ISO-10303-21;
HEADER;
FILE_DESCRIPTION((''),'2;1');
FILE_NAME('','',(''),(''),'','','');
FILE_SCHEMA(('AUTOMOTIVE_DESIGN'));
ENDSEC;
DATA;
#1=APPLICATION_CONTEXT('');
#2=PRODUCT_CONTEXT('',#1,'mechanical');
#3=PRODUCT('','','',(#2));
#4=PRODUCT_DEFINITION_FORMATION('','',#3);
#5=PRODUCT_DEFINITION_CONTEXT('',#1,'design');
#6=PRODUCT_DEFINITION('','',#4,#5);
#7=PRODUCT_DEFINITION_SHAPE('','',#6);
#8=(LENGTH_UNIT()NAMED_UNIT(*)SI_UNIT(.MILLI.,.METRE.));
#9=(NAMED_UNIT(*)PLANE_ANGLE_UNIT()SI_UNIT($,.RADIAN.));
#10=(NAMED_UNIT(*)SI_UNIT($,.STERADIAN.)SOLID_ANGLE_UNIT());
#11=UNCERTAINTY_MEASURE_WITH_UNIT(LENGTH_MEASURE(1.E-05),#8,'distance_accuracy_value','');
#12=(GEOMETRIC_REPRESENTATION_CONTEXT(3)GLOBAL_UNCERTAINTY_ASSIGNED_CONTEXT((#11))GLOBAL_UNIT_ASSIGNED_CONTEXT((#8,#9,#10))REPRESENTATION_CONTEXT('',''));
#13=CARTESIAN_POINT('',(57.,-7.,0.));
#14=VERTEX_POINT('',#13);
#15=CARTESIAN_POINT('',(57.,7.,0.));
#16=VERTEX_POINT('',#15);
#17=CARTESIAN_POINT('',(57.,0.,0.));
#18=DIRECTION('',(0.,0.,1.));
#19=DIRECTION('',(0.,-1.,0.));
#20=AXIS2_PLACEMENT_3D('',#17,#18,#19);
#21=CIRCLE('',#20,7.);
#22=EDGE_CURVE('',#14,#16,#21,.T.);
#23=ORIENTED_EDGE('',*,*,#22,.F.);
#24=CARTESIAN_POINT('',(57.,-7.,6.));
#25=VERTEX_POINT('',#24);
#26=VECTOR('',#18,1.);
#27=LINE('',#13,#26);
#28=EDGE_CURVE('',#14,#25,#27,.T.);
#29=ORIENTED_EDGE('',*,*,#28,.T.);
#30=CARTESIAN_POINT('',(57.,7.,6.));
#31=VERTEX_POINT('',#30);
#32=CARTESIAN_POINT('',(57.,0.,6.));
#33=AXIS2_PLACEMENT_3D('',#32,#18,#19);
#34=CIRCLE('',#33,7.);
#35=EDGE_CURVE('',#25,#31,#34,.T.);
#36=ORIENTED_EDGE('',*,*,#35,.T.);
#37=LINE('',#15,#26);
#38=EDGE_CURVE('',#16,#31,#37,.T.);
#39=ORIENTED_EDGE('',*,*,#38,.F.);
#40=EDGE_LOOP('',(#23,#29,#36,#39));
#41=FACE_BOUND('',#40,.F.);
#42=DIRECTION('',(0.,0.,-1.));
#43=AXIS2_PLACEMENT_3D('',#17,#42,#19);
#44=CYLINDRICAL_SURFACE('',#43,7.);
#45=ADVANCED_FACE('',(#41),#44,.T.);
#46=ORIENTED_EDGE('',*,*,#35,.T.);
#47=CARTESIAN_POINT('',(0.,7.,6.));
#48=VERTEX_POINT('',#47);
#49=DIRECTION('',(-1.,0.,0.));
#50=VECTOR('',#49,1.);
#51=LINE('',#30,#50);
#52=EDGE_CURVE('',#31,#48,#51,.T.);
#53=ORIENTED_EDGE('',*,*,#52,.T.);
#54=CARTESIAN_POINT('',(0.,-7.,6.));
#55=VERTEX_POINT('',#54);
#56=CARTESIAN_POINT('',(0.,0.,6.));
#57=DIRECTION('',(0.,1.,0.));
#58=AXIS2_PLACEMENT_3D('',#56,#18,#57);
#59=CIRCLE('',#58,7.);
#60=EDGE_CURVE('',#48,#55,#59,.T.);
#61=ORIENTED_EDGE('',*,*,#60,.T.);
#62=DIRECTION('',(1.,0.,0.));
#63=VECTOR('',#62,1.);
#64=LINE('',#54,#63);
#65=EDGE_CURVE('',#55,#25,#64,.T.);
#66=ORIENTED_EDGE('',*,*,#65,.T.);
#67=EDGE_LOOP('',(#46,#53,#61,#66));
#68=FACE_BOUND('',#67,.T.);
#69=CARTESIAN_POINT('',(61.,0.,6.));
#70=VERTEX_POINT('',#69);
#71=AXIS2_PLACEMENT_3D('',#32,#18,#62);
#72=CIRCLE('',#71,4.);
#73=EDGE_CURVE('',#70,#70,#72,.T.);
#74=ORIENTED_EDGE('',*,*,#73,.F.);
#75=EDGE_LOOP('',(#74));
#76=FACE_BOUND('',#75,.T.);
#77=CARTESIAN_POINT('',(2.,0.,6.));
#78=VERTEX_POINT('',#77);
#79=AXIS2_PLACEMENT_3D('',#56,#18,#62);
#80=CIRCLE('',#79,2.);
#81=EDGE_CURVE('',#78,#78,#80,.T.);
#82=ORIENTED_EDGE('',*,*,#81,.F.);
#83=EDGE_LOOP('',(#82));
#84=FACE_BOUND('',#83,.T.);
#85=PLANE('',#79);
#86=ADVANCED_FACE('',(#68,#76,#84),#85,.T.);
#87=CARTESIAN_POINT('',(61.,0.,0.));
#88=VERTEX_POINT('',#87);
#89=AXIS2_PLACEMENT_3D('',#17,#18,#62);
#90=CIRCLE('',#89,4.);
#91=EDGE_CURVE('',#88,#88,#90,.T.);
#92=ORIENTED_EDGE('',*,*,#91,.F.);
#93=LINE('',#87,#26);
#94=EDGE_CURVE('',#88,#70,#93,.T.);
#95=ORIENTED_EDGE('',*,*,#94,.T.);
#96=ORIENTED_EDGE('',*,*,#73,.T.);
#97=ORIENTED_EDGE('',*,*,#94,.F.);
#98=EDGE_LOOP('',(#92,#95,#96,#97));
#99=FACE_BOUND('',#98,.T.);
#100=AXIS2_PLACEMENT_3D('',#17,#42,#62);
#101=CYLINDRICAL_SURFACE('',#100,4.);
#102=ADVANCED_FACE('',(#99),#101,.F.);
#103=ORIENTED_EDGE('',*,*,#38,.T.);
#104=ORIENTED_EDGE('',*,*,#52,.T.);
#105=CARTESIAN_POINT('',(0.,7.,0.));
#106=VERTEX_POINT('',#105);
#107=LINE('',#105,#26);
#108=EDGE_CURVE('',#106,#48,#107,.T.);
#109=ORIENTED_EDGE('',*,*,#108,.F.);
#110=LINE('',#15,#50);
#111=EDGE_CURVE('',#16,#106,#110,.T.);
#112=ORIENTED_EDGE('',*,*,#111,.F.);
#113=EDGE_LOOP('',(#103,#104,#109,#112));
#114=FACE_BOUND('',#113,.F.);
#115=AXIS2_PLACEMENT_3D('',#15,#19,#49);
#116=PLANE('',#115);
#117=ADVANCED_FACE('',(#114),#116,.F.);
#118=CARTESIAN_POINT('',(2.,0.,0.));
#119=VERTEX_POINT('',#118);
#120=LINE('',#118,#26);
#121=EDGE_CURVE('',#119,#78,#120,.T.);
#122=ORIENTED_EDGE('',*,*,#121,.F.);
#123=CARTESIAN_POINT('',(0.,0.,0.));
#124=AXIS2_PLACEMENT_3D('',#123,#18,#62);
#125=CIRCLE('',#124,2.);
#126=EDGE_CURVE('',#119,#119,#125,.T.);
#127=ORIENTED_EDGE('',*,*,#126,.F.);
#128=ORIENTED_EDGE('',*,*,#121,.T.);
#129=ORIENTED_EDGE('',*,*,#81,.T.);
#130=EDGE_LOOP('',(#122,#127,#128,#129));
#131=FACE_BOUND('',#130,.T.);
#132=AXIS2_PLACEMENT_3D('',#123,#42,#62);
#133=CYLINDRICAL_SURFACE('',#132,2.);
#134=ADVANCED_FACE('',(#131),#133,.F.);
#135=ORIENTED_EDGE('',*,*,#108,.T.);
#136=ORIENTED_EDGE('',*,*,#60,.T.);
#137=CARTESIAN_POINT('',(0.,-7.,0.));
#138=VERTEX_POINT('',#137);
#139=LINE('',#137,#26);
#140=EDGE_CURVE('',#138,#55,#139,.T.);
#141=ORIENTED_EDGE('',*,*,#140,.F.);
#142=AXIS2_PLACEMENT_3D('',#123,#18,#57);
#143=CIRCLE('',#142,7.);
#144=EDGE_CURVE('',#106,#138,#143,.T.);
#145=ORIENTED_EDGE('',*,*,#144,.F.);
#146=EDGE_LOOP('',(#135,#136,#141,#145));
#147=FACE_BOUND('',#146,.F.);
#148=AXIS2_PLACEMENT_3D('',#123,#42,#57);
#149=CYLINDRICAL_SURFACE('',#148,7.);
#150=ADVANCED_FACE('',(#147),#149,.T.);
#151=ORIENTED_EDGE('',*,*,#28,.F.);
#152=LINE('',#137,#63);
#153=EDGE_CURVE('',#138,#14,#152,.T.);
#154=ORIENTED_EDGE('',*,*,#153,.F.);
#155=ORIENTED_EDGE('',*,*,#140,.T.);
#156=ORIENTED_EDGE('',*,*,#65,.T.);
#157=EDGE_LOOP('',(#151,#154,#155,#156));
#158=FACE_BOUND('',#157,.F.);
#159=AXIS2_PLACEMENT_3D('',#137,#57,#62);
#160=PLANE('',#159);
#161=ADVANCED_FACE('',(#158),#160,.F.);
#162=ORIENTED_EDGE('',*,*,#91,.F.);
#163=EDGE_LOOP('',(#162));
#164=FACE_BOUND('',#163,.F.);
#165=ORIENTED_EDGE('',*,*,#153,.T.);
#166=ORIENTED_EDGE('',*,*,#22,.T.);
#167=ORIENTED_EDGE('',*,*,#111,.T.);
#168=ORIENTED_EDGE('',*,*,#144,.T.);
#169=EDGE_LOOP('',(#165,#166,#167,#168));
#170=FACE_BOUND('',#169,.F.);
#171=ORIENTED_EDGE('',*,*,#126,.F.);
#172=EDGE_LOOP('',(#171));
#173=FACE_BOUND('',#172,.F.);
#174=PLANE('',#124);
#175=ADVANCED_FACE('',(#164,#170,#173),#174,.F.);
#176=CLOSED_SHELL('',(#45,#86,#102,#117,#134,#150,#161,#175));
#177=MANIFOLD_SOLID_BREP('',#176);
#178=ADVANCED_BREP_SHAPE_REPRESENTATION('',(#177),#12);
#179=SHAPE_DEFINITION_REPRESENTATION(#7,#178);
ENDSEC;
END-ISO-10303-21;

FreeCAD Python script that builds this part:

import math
import FreeCAD as App
import Part
import Sketcher

V = App.Vector

doc = App.newDocument("Part")
body = doc.addObject("PartDesign::Body", "Body")

sketch1 = body.newObject("Sketcher::SketchObject", "Sketch")
sketch1.AttachmentSupport = (doc.getObject("XY_Plane"), [""])
sketch1.MapMode = "FlatFace"
sketch1.addGeometry(Part.ArcOfCircle(Part.Circle(V(0, 0, 0), V(0, 0, 1), 7), math.radians(90), math.radians(270)), False)
sketch1.addGeometry(Part.LineSegment(V(0, -7, 0), V(57, -7, 0)), False)
sketch1.addGeometry(Part.ArcOfCircle(Part.Circle(V(57, 0, 0), V(0, 0, 1), 7), math.radians(-90), math.radians(90)), False)
sketch1.addGeometry(Part.LineSegment(V(57, 7, 0), V(0, 7, 0)), False)
sketch1.addGeometry(Part.Circle(V(0, 0, 0), V(0, 0, 1), 2), False)
sketch1.addGeometry(Part.Circle(V(57, 0, 0), V(0, 0, 1), 4), False)
sketch1.addConstraint(Sketcher.Constraint("Tangent", 0, 2, 1, 1))
sketch1.addConstraint(Sketcher.Constraint("Tangent", 1, 2, 2, 1))
sketch1.addConstraint(Sketcher.Constraint("Tangent", 2, 2, 3, 1))
sketch1.addConstraint(Sketcher.Constraint("Tangent", 3, 2, 0, 1))
sketch1.addConstraint(Sketcher.Constraint("Horizontal", 1))
sketch1.addConstraint(Sketcher.Constraint("Horizontal", 3))
sketch1.addConstraint(Sketcher.Constraint("Coincident", 0, 3, -1, 1))
sketch1.addConstraint(Sketcher.Constraint("Coincident", 4, 3, -1, 1))
sketch1.addConstraint(Sketcher.Constraint("Coincident", 5, 3, 2, 3))
sketch1.addConstraint(Sketcher.Constraint("Diameter", 4, 4.0))
sketch1.addConstraint(Sketcher.Constraint("Diameter", 5, 8.0))
sketch1.addConstraint(Sketcher.Constraint("Radius", 0, 7.0))
sketch1.addConstraint(Sketcher.Constraint("DistanceX", 1, 1, 1, 2, 57.0))
pad1 = body.newObject("PartDesign::Pad", "Pad")
pad1.Profile = sketch1
pad1.Length = 6

doc.recompute()
